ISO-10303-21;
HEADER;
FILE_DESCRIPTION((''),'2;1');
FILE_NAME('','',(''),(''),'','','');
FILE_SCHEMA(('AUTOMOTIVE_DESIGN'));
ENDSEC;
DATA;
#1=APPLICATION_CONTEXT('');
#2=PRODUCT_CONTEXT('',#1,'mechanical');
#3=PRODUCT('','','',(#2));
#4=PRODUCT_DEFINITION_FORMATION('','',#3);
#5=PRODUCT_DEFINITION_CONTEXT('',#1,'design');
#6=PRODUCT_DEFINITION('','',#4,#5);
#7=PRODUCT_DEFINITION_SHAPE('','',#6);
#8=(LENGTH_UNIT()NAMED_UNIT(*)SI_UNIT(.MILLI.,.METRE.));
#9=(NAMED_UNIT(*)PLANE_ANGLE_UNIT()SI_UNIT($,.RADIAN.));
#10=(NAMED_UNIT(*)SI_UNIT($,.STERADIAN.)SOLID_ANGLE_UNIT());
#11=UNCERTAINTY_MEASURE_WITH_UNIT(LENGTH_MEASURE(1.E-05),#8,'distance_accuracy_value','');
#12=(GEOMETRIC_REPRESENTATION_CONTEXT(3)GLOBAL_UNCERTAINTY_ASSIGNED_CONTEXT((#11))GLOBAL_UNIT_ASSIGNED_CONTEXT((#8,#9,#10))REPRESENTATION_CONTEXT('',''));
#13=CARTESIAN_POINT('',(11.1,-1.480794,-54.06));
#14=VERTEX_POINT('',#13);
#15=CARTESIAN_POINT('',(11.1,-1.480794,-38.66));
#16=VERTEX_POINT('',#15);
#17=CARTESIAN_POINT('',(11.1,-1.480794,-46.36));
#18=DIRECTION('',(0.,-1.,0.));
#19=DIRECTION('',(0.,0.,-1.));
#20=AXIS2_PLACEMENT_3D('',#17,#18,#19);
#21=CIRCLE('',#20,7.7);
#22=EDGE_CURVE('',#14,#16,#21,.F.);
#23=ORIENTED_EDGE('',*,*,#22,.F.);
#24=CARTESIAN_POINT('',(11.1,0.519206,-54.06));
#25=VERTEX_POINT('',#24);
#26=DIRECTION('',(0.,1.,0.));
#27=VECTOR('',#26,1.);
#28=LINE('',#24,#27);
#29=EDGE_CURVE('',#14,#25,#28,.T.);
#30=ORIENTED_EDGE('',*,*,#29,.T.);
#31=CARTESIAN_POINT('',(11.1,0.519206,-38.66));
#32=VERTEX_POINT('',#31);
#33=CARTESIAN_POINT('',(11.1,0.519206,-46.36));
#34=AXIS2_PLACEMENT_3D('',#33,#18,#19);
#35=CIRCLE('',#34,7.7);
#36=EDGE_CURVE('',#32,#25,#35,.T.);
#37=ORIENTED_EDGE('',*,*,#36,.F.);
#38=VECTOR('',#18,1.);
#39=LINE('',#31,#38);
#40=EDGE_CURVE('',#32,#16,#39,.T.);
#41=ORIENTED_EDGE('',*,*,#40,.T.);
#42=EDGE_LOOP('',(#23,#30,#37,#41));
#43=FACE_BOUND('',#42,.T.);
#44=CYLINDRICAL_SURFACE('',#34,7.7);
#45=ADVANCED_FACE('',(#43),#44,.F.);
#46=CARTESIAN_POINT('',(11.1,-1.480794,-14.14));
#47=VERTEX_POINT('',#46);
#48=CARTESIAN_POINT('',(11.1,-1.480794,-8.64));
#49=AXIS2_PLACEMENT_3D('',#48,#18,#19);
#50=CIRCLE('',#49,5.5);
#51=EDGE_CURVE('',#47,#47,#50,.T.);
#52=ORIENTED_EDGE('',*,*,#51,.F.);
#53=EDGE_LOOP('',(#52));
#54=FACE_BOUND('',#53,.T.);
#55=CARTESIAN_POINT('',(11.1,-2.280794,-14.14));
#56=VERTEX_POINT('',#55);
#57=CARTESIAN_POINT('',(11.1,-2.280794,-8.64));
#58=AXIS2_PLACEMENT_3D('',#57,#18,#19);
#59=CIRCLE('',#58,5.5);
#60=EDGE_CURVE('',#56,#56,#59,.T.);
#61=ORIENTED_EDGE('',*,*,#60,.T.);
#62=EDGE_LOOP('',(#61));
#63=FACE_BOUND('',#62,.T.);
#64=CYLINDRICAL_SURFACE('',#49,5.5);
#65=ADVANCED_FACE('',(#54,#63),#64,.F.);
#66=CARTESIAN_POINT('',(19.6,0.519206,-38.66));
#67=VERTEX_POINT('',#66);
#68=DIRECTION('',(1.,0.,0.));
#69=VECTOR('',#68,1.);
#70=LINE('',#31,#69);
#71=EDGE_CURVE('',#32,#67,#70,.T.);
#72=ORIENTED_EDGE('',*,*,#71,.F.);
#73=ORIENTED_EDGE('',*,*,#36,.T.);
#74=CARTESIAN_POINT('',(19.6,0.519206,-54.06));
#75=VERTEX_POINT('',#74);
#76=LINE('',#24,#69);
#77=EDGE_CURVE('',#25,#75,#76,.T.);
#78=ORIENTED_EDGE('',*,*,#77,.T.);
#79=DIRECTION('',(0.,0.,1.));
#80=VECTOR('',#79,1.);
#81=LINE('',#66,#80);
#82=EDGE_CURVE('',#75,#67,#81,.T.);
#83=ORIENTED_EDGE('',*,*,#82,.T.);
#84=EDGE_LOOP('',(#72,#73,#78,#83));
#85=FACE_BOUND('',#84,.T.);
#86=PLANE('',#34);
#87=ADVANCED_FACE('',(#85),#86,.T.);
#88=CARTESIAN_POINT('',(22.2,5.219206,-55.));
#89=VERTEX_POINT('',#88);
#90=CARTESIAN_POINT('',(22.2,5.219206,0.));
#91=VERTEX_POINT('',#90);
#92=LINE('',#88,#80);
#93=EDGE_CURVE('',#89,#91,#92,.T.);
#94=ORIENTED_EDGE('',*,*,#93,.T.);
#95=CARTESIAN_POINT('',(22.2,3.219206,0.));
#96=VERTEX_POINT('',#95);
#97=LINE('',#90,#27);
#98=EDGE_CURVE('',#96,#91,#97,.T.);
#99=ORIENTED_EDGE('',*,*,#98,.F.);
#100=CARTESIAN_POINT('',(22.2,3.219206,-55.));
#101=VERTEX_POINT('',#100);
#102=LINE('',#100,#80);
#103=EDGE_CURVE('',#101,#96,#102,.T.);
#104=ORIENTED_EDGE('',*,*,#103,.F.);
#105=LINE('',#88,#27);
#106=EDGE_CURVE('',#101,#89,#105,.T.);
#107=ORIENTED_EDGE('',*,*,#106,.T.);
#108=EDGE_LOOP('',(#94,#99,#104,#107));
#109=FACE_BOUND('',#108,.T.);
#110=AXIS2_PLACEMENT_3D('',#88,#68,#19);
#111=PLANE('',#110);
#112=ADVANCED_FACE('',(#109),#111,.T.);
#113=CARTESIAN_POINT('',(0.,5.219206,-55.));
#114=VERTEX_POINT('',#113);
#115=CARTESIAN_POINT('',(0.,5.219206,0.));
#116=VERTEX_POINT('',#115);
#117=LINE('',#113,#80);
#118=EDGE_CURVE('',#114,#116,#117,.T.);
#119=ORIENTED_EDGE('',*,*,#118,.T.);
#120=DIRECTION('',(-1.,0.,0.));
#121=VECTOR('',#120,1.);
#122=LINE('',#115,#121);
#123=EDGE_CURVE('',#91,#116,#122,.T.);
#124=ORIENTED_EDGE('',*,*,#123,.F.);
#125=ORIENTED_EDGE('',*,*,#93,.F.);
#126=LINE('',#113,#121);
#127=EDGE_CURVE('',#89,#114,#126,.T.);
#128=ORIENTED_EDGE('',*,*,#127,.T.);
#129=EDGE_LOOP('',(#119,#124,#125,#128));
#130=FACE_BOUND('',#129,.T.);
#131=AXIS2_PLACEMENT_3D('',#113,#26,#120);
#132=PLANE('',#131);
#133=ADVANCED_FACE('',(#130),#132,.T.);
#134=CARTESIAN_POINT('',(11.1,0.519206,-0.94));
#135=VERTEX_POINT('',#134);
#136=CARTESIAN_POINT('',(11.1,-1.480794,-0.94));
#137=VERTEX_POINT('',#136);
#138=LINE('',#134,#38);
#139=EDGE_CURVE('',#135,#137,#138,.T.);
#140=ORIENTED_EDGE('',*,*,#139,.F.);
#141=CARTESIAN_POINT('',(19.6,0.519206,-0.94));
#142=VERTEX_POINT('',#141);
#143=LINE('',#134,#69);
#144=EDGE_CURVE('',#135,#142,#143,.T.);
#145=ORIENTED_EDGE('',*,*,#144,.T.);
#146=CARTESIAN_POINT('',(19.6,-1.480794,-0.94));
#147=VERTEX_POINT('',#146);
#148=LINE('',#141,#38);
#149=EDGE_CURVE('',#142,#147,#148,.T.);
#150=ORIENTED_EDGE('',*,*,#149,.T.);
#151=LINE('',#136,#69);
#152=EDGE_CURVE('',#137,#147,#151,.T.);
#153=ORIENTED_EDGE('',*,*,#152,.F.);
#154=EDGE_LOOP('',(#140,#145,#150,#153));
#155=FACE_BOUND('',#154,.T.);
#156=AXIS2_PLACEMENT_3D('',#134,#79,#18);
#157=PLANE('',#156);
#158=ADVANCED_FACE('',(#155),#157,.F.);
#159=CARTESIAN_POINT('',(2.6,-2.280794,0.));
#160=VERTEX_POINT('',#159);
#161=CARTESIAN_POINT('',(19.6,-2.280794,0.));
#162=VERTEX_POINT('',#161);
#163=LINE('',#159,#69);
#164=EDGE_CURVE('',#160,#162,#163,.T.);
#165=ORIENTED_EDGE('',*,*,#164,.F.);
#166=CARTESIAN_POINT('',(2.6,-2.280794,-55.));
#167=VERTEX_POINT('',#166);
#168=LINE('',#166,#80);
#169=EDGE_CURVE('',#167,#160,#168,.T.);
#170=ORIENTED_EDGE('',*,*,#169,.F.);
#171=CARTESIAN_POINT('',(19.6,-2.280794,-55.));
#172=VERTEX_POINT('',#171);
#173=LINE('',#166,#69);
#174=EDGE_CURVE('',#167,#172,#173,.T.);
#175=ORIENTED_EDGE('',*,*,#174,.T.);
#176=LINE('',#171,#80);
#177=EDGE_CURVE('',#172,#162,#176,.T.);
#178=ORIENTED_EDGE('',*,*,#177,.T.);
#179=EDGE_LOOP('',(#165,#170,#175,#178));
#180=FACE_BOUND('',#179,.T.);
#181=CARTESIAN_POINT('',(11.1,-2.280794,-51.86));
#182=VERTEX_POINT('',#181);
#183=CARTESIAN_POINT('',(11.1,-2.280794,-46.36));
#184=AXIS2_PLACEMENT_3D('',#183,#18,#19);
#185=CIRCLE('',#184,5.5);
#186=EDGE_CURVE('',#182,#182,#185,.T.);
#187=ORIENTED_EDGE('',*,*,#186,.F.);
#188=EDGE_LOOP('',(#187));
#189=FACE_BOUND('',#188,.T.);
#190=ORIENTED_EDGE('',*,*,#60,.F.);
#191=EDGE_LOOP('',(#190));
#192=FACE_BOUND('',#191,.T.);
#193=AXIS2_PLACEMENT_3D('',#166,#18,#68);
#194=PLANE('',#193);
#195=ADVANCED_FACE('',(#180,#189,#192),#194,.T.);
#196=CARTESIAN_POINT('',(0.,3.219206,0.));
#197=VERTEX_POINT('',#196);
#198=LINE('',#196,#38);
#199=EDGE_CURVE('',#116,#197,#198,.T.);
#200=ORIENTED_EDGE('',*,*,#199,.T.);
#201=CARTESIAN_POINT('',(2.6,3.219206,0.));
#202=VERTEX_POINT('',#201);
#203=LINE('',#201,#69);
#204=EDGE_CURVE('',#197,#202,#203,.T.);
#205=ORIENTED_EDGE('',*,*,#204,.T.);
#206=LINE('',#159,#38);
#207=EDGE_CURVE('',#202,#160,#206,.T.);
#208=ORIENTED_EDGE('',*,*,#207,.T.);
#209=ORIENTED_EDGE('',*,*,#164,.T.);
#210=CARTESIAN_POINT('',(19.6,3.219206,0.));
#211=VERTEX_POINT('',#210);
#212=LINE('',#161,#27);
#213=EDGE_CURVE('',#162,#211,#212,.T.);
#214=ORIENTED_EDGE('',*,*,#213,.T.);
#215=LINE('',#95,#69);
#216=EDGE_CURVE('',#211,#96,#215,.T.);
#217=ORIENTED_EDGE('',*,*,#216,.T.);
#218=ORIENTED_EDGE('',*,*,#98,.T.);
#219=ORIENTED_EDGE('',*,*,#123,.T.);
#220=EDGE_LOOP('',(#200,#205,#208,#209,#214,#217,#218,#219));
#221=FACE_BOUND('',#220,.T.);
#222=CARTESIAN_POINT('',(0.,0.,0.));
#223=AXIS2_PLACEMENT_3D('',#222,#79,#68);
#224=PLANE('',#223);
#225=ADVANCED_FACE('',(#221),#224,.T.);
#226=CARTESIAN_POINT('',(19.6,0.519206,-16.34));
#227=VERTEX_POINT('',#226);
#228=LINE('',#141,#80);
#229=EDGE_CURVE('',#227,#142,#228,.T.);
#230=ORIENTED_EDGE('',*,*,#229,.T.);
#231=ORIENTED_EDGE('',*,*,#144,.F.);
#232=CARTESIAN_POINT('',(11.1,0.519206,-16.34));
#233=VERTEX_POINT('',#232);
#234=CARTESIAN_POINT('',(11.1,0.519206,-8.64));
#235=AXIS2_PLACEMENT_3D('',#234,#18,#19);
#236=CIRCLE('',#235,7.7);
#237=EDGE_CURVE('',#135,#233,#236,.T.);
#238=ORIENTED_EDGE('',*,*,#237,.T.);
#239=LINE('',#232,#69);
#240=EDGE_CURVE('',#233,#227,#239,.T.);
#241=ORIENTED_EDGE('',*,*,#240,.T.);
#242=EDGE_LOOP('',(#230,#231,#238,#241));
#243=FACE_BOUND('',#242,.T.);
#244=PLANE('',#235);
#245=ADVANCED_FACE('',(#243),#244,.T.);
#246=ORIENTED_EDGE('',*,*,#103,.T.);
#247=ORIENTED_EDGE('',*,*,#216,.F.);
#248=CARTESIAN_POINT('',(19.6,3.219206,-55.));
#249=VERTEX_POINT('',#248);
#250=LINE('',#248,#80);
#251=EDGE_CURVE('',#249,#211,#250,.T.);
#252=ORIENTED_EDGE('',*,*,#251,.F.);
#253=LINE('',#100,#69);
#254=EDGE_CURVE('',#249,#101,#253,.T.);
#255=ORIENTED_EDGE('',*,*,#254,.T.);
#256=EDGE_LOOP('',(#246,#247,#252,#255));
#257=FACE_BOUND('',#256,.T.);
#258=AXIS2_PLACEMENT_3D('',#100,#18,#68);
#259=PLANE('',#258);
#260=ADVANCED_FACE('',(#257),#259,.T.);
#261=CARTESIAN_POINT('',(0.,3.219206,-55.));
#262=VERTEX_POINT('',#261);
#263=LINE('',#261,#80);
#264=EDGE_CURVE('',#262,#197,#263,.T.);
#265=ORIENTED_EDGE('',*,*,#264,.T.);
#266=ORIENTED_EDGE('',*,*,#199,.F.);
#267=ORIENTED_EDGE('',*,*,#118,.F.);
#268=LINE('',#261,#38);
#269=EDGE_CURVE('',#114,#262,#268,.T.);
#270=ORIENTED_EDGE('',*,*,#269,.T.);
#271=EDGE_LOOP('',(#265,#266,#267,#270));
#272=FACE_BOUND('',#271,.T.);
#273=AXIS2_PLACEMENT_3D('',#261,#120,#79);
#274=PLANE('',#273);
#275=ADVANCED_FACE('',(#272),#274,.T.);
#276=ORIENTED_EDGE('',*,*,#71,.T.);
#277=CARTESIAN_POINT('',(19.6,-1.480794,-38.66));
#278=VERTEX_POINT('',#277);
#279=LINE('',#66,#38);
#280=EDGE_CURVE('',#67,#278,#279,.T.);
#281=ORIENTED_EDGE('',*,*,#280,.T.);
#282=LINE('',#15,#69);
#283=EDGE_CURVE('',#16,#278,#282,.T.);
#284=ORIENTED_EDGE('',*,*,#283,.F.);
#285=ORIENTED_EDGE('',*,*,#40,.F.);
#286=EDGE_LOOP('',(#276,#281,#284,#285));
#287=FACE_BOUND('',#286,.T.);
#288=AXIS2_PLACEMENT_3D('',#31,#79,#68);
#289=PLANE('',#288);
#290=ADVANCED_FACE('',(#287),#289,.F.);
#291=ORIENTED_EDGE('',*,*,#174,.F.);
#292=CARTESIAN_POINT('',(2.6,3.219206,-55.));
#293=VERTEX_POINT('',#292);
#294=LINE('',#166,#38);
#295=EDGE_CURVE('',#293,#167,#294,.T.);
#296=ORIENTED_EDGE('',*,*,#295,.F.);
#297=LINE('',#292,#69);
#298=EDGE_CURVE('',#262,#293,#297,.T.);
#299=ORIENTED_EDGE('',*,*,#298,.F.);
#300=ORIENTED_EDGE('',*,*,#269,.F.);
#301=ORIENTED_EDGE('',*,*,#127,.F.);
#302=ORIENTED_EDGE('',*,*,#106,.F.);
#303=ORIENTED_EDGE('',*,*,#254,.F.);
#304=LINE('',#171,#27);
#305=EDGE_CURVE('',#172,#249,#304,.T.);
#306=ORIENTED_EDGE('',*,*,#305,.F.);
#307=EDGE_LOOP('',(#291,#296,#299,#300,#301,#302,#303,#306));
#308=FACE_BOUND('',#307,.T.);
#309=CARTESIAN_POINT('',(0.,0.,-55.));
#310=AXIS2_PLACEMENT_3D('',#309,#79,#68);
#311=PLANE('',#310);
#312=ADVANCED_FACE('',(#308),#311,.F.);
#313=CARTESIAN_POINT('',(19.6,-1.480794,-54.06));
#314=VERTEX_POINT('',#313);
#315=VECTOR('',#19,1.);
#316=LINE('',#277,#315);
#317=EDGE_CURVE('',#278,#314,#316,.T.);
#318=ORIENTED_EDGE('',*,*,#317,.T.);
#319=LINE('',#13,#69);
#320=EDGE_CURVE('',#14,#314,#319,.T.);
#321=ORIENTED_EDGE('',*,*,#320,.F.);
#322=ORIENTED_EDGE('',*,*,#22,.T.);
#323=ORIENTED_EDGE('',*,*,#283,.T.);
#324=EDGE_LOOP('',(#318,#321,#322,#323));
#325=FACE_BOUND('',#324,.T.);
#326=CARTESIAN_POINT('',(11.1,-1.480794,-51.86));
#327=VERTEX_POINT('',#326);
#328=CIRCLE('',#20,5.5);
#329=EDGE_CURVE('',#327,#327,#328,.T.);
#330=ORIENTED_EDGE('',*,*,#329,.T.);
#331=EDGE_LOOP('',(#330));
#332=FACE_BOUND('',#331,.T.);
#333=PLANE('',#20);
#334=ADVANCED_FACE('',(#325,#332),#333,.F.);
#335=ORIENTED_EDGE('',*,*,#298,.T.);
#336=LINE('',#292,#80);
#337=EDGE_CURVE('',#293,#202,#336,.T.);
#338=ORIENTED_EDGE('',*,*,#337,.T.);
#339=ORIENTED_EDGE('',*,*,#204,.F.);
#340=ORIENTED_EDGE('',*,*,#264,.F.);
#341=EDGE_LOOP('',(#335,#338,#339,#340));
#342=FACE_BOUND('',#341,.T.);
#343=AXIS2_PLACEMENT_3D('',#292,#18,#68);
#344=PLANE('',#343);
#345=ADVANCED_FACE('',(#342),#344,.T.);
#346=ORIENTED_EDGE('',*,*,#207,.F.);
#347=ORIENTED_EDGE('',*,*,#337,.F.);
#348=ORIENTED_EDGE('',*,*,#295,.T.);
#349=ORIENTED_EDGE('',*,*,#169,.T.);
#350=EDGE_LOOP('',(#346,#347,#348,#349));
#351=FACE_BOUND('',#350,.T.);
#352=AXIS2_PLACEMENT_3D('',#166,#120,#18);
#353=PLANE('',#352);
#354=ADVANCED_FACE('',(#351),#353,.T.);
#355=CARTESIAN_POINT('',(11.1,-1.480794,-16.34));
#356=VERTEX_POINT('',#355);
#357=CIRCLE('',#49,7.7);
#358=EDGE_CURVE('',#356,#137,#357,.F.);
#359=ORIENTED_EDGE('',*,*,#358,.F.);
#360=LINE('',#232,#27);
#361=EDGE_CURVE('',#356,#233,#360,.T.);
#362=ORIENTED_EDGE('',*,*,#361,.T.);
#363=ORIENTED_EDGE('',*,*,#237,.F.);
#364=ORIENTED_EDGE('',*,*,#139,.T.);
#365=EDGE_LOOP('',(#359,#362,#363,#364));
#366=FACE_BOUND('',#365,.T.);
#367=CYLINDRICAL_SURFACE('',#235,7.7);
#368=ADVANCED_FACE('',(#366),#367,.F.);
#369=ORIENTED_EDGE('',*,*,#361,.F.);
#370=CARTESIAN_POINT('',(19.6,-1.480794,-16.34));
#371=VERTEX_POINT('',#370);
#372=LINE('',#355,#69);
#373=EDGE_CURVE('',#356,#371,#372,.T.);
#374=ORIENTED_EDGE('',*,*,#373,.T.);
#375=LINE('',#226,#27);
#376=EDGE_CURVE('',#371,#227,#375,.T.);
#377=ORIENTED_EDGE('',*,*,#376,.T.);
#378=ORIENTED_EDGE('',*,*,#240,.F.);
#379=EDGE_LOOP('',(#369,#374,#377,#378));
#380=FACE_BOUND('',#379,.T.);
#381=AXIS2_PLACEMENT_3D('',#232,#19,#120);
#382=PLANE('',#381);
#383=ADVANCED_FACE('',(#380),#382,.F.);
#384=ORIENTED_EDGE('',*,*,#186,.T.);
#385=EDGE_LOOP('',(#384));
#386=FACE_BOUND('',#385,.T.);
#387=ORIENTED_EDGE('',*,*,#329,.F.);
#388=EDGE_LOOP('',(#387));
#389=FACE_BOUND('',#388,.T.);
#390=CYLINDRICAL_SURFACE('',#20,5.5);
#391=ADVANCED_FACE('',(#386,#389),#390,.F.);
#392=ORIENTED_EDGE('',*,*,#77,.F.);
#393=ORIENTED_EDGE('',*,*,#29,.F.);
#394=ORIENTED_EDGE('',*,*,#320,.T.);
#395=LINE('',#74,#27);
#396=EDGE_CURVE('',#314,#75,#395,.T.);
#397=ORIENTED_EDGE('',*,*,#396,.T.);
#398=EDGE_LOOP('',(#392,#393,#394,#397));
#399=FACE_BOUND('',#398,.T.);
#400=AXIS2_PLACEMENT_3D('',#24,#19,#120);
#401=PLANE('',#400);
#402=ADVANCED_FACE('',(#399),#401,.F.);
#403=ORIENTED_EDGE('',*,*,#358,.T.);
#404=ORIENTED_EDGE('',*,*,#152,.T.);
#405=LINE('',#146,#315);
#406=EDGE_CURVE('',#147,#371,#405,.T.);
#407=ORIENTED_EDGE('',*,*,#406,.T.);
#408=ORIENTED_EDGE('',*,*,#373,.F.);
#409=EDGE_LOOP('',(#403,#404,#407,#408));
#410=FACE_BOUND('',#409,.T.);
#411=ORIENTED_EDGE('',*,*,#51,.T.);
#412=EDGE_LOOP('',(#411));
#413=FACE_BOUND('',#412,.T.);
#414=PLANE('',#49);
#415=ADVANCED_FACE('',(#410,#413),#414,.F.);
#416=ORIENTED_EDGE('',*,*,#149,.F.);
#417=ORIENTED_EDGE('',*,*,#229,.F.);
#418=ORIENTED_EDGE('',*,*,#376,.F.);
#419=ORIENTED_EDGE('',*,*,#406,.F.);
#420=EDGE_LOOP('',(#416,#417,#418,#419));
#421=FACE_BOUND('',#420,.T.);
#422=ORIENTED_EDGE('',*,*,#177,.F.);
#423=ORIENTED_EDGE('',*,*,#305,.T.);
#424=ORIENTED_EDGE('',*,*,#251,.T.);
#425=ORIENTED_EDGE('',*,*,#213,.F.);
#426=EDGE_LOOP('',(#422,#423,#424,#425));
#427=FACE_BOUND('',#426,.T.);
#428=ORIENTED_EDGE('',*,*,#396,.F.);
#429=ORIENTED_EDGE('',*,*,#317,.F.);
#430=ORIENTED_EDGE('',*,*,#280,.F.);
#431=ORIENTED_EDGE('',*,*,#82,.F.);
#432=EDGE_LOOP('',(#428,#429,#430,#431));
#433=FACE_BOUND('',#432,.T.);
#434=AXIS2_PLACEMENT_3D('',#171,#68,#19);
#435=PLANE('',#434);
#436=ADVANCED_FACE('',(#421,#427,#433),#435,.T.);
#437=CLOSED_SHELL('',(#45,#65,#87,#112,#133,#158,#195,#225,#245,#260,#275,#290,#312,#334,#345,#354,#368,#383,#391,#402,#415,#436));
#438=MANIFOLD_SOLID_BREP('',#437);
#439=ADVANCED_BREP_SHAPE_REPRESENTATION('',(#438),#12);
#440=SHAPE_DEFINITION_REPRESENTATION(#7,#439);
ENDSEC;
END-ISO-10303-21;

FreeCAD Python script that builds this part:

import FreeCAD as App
import Part
import Sketcher

V = App.Vector
Q = App.Units.Quantity


def add_polygon(sketch, points):
    """Adds a closed chain of lines whose ends are joined by coincident constraints."""
    first, n = sketch.GeometryCount, len(points)
    for a, b in zip(points, points[1:] + points[:1]):
        sketch.addGeometry(Part.LineSegment(App.Vector(*a, 0), App.Vector(*b, 0)), False)
    for i in range(n):
        sketch.addConstraint(Sketcher.Constraint("Coincident", first + i, 2, first + (i + 1) % n, 1))

doc = App.newDocument("Part")
body = doc.addObject("PartDesign::Body", "Body")

# Sketch on XY plane
sketch1 = body.newObject("Sketcher::SketchObject", "Sketch")
sketch1.AttachmentSupport = (doc.getObject("XY_Plane"), [""])
sketch1.MapMode = "FlatFace"
add_polygon(sketch1, [(2.6, -2.280794), (19.6, -2.280794), (19.6, 3.219206), (22.2, 3.219206), (22.2, 5.219206), (0, 5.219206), (0, 3.219206), (2.6, 3.219206)])  # lines 0-7
sketch1.addConstraint(Sketcher.Constraint("Horizontal", 0))
sketch1.addConstraint(Sketcher.Constraint("Vertical", 1))
sketch1.addConstraint(Sketcher.Constraint("Horizontal", 2))
sketch1.addConstraint(Sketcher.Constraint("Vertical", 3))
sketch1.addConstraint(Sketcher.Constraint("Horizontal", 4))
sketch1.addConstraint(Sketcher.Constraint("Vertical", 5))
sketch1.addConstraint(Sketcher.Constraint("Horizontal", 6))
sketch1.addConstraint(Sketcher.Constraint("Vertical", 7))
sketch1.addConstraint(Sketcher.Constraint("PointOnObject", 4, 2, -2))
sketch1.addConstraint(Sketcher.Constraint("Horizontal", 2, 2, 5, 2))
sketch1.addConstraint(Sketcher.Constraint("Equal", 2, 6))
sketch1.addConstraint(Sketcher.Constraint("DistanceX", 0, 1, 0, 2, Q("17 mm")))
sketch1.addConstraint(Sketcher.Constraint("DistanceY", 3, 1, 3, 2, Q("2 mm")))
sketch1.addConstraint(Sketcher.Constraint("DistanceX", 2, 1, 2, 2, Q("2.6 mm")))
sketch1.addConstraint(Sketcher.Constraint("DistanceY", 1, 1, 1, 2, Q("5.5 mm")))
sketch1.addConstraint(Sketcher.Constraint("DistanceY", 0, 2, -1, 1, Q("2.280794 mm")))
pad1 = body.newObject("PartDesign::Pad", "Pad")
pad1.Profile = sketch1
pad1.Length = 55
pad1.Reversed = True

# Sketch on XZ plane
sketch2 = body.newObject("Sketcher::SketchObject", "Sketch001")
sketch2.AttachmentSupport = (doc.getObject("XZ_Plane"), [""])
sketch2.MapMode = "FlatFace"
sketch2.AttachmentOffset = App.Placement(V(0, 0, 2.280794), App.Rotation())
sketch2.addGeometry(Part.Circle(V(11.1, -8.64, 0), V(0, 0, 1), 7.7), False)
sketch2.addGeometry(Part.Circle(V(11.1, -46.36, 0), V(0, 0, 1), 7.7), False)
sketch2.addConstraint(Sketcher.Constraint("Equal", 0, 1))
sketch2.addConstraint(Sketcher.Constraint("Vertical", 0, 3, 1, 3))
sketch2.addConstraint(Sketcher.Constraint("Diameter", 0, Q("15.4 mm")))
sketch2.addConstraint(Sketcher.Constraint("DistanceX", -1, 1, 0, 3, Q("11.1 mm")))
sketch2.addConstraint(Sketcher.Constraint("DistanceY", 0, 3, -1, 1, Q("8.64 mm")))
sketch2.addConstraint(Sketcher.Constraint("DistanceY", 1, 3, -1, 1, Q("46.36 mm")))
pocket1 = body.newObject("PartDesign::Pocket", "Pocket")
pocket1.Profile = sketch2
pocket1.Length = 2.8

# Sketch on XZ plane
sketch3 = body.newObject("Sketcher::SketchObject", "Sketch002")
sketch3.AttachmentSupport = (doc.getObject("XZ_Plane"), [""])
sketch3.MapMode = "FlatFace"
sketch3.AttachmentOffset = App.Placement(V(0, 0, 2.280794), App.Rotation())
sketch3.addGeometry(Part.Circle(V(11.1, -8.64, 0), V(0, 0, 1), 7.7), False)
sketch3.addGeometry(Part.Circle(V(11.1, -8.64, 0), V(0, 0, 1), 5.5), False)
sketch3.addGeometry(Part.Circle(V(11.1, -46.36, 0), V(0, 0, 1), 7.7), False)
sketch3.addGeometry(Part.Circle(V(11.1, -46.36, 0), V(0, 0, 1), 5.5), False)
sketch3.addConstraint(Sketcher.Constraint("Coincident", 1, 3, 0, 3))
sketch3.addConstraint(Sketcher.Constraint("Coincident", 3, 3, 2, 3))
sketch3.addConstraint(Sketcher.Constraint("Equal", 0, 2))
sketch3.addConstraint(Sketcher.Constraint("Equal", 1, 3))
sketch3.addConstraint(Sketcher.Constraint("Vertical", 1, 3, 2, 3))
sketch3.addConstraint(Sketcher.Constraint("Diameter", 1, Q("11 mm")))
sketch3.addConstraint(Sketcher.Constraint("Diameter", 0, Q("15.4 mm")))
sketch3.addConstraint(Sketcher.Constraint("DistanceX", -1, 1, 0, 3, Q("11.1 mm")))
sketch3.addConstraint(Sketcher.Constraint("DistanceY", 0, 3, -1, 1, Q("8.64 mm")))
sketch3.addConstraint(Sketcher.Constraint("DistanceY", 2, 3, -1, 1, Q("46.36 mm")))
pad2 = body.newObject("PartDesign::Pad", "Pad001")
pad2.Profile = sketch3
pad2.Length = 0.8
pad2.Reversed = True

# Sketch on YZ plane
sketch4 = body.newObject("Sketcher::SketchObject", "Sketch003")
sketch4.AttachmentSupport = (doc.getObject("YZ_Plane"), [""])
sketch4.MapMode = "FlatFace"
sketch4.AttachmentOffset = App.Placement(V(0, 0, 19.6), App.Rotation())
add_polygon(sketch4, [(0.519206, -0.94), (-1.480794, -0.94), (-1.480794, -16.34), (0.519206, -16.34)])  # lines 0-3
add_polygon(sketch4, [(0.519206, -38.66), (-1.480794, -38.66), (-1.480794, -54.06), (0.519206, -54.06)])  # lines 4-7
sketch4.addConstraint(Sketcher.Constraint("Horizontal", 0))
sketch4.addConstraint(Sketcher.Constraint("Vertical", 1))
sketch4.addConstraint(Sketcher.Constraint("Horizontal", 2))
sketch4.addConstraint(Sketcher.Constraint("Vertical", 3))
sketch4.addConstraint(Sketcher.Constraint("Horizontal", 4))
sketch4.addConstraint(Sketcher.Constraint("Vertical", 5))
sketch4.addConstraint(Sketcher.Constraint("Horizontal", 6))
sketch4.addConstraint(Sketcher.Constraint("Vertical", 7))
sketch4.addConstraint(Sketcher.Constraint("Vertical", 1, 2, 4, 2))
sketch4.addConstraint(Sketcher.Constraint("Vertical", 3, 2, 6, 2))
sketch4.addConstraint(Sketcher.Constraint("Equal", 3, 5))
sketch4.addConstraint(Sketcher.Constraint("DistanceX", 0, 2, 0, 1, Q("2 mm")))
sketch4.addConstraint(Sketcher.Constraint("DistanceY", 1, 2, 1, 1, Q("15.4 mm")))
sketch4.addConstraint(Sketcher.Constraint("DistanceY", 0, 2, -1, 1, Q("0.94 mm")))
sketch4.addConstraint(Sketcher.Constraint("DistanceY", 4, 2, -1, 1, Q("38.66 mm")))
sketch4.addConstraint(Sketcher.Constraint("DistanceX", 0, 2, -1, 1, Q("1.480794 mm")))
pocket2 = body.newObject("PartDesign::Pocket", "Pocket001")
pocket2.Profile = sketch4
pocket2.Length = 8.5

doc.recompute()
